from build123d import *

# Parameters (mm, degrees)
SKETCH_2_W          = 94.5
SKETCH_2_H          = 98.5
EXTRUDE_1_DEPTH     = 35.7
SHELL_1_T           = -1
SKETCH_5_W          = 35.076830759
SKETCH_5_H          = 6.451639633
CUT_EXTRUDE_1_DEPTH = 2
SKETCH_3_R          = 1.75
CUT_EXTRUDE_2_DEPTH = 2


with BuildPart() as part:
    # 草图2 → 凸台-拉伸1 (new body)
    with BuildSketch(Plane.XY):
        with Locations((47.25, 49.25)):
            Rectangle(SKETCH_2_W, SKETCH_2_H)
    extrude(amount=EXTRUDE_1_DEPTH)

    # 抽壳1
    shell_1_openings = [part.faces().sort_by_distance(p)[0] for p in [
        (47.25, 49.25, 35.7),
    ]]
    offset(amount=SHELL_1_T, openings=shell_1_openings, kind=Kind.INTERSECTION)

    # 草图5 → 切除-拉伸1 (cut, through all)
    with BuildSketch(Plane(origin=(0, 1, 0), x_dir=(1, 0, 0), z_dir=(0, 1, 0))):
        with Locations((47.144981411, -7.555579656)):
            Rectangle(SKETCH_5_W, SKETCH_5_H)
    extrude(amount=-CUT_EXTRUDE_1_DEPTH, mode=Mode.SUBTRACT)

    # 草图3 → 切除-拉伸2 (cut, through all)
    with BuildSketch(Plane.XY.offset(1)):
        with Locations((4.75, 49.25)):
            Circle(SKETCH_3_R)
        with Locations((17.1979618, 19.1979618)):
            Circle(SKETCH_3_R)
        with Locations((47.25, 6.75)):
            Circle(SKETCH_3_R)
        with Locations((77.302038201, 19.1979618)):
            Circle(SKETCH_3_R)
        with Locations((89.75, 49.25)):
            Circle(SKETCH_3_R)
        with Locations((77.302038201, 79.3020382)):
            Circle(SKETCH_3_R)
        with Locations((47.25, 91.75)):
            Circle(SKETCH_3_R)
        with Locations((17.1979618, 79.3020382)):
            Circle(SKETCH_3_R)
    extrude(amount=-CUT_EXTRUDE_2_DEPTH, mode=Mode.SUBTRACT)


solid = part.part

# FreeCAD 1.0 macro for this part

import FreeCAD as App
import Part
import Sketcher

V = App.Vector


def faces_at(feature, points):
    """Names of the faces that lie closest to the given points."""
    faces = feature.Shape.Faces
    near = lambda p: min(range(len(faces)), key=lambda i: faces[i].distToShape(Part.Vertex(*p))[0])
    return sorted({f"Face{near(p) + 1}" for p in points})

doc = App.newDocument("Part")
body = doc.addObject("PartDesign::Body", "Body")

sketch1 = body.newObject("Sketcher::SketchObject", "Sketch")
sketch1.AttachmentSupport = (doc.getObject("XY_Plane"), [""])
sketch1.MapMode = "FlatFace"
sketch1.addGeometry(Part.LineSegment(V(0, 98, 0), V(0, 0, 0)), False)
sketch1.addGeometry(Part.LineSegment(V(0, 0, 0), V(94, 0, 0)), False)
sketch1.addGeometry(Part.LineSegment(V(94, 0, 0), V(94, 98, 0)), False)
sketch1.addGeometry(Part.LineSegment(V(94, 98, 0), V(0, 98, 0)), False)
sketch1.addConstraint(Sketcher.Constraint("Coincident", 0, 2, 1, 1))
sketch1.addConstraint(Sketcher.Constraint("Coincident", 1, 2, 2, 1))
sketch1.addConstraint(Sketcher.Constraint("Coincident", 2, 2, 3, 1))
sketch1.addConstraint(Sketcher.Constraint("Coincident", 3, 2, 0, 1))
sketch1.addConstraint(Sketcher.Constraint("Vertical", 0))
sketch1.addConstraint(Sketcher.Constraint("Horizontal", 1))
sketch1.addConstraint(Sketcher.Constraint("Vertical", 2))
sketch1.addConstraint(Sketcher.Constraint("Horizontal", 3))
sketch1.addConstraint(Sketcher.Constraint("Coincident", 0, 2, -1, 1))
sketch1.addConstraint(Sketcher.Constraint("DistanceX", 1, 1, 1, 2, 94.5))
sketch1.addConstraint(Sketcher.Constraint("DistanceY", 0, 2, 0, 1, 98.5))
pad1 = body.newObject("PartDesign::Pad", "Pad")
pad1.Profile = sketch1
pad1.Length = 35.7
doc.recompute()

thickness = body.newObject("PartDesign::Thickness", "Thickness")
thickness.Base = (pad1, faces_at(pad1, [(47.25, 49.25, 35.7)]))
thickness.Value = 1
thickness.Reversed = True
thickness.Join = "Intersection"

sketch2 = body.newObject("Sketcher::SketchObject", "Sketch001")
sketch2.AttachmentSupport = (doc.getObject("XZ_Plane"), [""])
sketch2.MapMode = "FlatFace"
sketch2.AttachmentOffset = App.Placement(V(0, 0, -1), App.Rotation())
sketch2.addGeometry(Part.LineSegment(V(30, 4, 0), V(30, 11, 0)), False)
sketch2.addGeometry(Part.LineSegment(V(30, 11, 0), V(65, 11, 0)), False)
sketch2.addGeometry(Part.LineSegment(V(65, 11, 0), V(65, 4, 0)), False)
sketch2.addGeometry(Part.LineSegment(V(65, 4, 0), V(30, 4, 0)), False)
sketch2.addConstraint(Sketcher.Constraint("Coincident", 0, 2, 1, 1))
sketch2.addConstraint(Sketcher.Constraint("Coincident", 1, 2, 2, 1))
sketch2.addConstraint(Sketcher.Constraint("Coincident", 2, 2, 3, 1))
sketch2.addConstraint(Sketcher.Constraint("Coincident", 3, 2, 0, 1))
sketch2.addConstraint(Sketcher.Constraint("Vertical", 0))
sketch2.addConstraint(Sketcher.Constraint("Horizontal", 1))
sketch2.addConstraint(Sketcher.Constraint("Vertical", 2))
sketch2.addConstraint(Sketcher.Constraint("Horizontal", 3))
sketch2.addConstraint(Sketcher.Constraint("DistanceX", 1, 1, 1, 2, 35.076831))
sketch2.addConstraint(Sketcher.Constraint("DistanceY", 0, 1, 0, 2, 6.45164))
sketch2.addConstraint(Sketcher.Constraint("DistanceY", -1, 1, 0, 2, 10.781399))
sketch2.addConstraint(Sketcher.Constraint("DistanceX", -1, 1, 0, 2, 29.606566))
pocket1 = body.newObject("PartDesign::Pocket", "Pocket")
pocket1.Profile = sketch2
pocket1.Type = "ThroughAll"
pocket1.Reversed = True

sketch3 = body.newObject("Sketcher::SketchObject", "Sketch002")
sketch3.AttachmentSupport = (doc.getObject("XY_Plane"), [""])
sketch3.MapMode = "FlatFace"
sketch3.AttachmentOffset = App.Placement(V(0, 0, 1), App.Rotation())
sketch3.addGeometry(Part.Circle(V(4.8, 49.2, 0), V(0, 0, 1), 1.8), False)
sketch3.addGeometry(Part.Circle(V(17.2, 19.2, 0), V(0, 0, 1), 1.8), False)
sketch3.addGeometry(Part.Circle(V(47.2, 6.8, 0), V(0, 0, 1), 1.8), False)
sketch3.addGeometry(Part.Circle(V(77.3, 19.2, 0), V(0, 0, 1), 1.8), False)
sketch3.addGeometry(Part.Circle(V(89.8, 49.2, 0), V(0, 0, 1), 1.8), False)
sketch3.addGeometry(Part.Circle(V(77.3, 79.3, 0), V(0, 0, 1), 1.8), False)
sketch3.addGeometry(Part.Circle(V(47.2, 91.8, 0), V(0, 0, 1), 1.8), False)
sketch3.addGeometry(Part.Circle(V(17.2, 79.3, 0), V(0, 0, 1), 1.8), False)
sketch3.addConstraint(Sketcher.Constraint("Equal", 0, 1))
sketch3.addConstraint(Sketcher.Constraint("Equal", 1, 2))
sketch3.addConstraint(Sketcher.Constraint("Equal", 2, 3))
sketch3.addConstraint(Sketcher.Constraint("Equal", 3, 4))
sketch3.addConstraint(Sketcher.Constraint("Equal", 4, 5))
sketch3.addConstraint(Sketcher.Constraint("Equal", 5, 6))
sketch3.addConstraint(Sketcher.Constraint("Equal", 6, 7))
sketch3.addConstraint(Sketcher.Constraint("Horizontal", 1, 3, 3, 3))
sketch3.addConstraint(Sketcher.Constraint("Horizontal", 0, 3, 4, 3))
sketch3.addConstraint(Sketcher.Constraint("Horizontal", 5, 3, 7, 3))
sketch3.addConstraint(Sketcher.Constraint("Vertical", 3, 3, 5, 3))
sketch3.addConstraint(Sketcher.Constraint("Vertical", 2, 3, 6, 3))
sketch3.addConstraint(Sketcher.Constraint("Vertical", 1, 3, 7, 3))
sketch3.addConstraint(Sketcher.Constraint("Diameter", 0, 3.5))
sketch3.addConstraint(Sketcher.Constraint("DistanceX", 0, 3, 4, 3, 85.0))
sketch3.addConstraint(Sketcher.Constraint("DistanceX", 0, 3, 2, 3, 42.5))
sketch3.addConstraint(Sketcher.Constraint("DistanceY", 2, 3, 0, 3, 42.5))
sketch3.addConstraint(Sketcher.Constraint("DistanceY", 0, 3, 6, 3, 42.5))
sketch3.addConstraint(Sketcher.Constraint("DistanceX", -1, 1, 0, 3, 4.75))
sketch3.addConstraint(Sketcher.Constraint("DistanceY", -1, 1, 0, 3, 49.25))
sketch3.addConstraint(Sketcher.Constraint("DistanceX", -1, 1, 1, 3, 17.197962))
sketch3.addConstraint(Sketcher.Constraint("DistanceY", -1, 1, 1, 3, 19.197962))
sketch3.addConstraint(Sketcher.Constraint("DistanceX", -1, 1, 3, 3, 77.302038))
sketch3.addConstraint(Sketcher.Constraint("DistanceY", -1, 1, 5, 3, 79.302038))
pocket2 = body.newObject("PartDesign::Pocket", "Pocket001")
pocket2.Profile = sketch3
pocket2.Type = "ThroughAll"

doc.recompute()
